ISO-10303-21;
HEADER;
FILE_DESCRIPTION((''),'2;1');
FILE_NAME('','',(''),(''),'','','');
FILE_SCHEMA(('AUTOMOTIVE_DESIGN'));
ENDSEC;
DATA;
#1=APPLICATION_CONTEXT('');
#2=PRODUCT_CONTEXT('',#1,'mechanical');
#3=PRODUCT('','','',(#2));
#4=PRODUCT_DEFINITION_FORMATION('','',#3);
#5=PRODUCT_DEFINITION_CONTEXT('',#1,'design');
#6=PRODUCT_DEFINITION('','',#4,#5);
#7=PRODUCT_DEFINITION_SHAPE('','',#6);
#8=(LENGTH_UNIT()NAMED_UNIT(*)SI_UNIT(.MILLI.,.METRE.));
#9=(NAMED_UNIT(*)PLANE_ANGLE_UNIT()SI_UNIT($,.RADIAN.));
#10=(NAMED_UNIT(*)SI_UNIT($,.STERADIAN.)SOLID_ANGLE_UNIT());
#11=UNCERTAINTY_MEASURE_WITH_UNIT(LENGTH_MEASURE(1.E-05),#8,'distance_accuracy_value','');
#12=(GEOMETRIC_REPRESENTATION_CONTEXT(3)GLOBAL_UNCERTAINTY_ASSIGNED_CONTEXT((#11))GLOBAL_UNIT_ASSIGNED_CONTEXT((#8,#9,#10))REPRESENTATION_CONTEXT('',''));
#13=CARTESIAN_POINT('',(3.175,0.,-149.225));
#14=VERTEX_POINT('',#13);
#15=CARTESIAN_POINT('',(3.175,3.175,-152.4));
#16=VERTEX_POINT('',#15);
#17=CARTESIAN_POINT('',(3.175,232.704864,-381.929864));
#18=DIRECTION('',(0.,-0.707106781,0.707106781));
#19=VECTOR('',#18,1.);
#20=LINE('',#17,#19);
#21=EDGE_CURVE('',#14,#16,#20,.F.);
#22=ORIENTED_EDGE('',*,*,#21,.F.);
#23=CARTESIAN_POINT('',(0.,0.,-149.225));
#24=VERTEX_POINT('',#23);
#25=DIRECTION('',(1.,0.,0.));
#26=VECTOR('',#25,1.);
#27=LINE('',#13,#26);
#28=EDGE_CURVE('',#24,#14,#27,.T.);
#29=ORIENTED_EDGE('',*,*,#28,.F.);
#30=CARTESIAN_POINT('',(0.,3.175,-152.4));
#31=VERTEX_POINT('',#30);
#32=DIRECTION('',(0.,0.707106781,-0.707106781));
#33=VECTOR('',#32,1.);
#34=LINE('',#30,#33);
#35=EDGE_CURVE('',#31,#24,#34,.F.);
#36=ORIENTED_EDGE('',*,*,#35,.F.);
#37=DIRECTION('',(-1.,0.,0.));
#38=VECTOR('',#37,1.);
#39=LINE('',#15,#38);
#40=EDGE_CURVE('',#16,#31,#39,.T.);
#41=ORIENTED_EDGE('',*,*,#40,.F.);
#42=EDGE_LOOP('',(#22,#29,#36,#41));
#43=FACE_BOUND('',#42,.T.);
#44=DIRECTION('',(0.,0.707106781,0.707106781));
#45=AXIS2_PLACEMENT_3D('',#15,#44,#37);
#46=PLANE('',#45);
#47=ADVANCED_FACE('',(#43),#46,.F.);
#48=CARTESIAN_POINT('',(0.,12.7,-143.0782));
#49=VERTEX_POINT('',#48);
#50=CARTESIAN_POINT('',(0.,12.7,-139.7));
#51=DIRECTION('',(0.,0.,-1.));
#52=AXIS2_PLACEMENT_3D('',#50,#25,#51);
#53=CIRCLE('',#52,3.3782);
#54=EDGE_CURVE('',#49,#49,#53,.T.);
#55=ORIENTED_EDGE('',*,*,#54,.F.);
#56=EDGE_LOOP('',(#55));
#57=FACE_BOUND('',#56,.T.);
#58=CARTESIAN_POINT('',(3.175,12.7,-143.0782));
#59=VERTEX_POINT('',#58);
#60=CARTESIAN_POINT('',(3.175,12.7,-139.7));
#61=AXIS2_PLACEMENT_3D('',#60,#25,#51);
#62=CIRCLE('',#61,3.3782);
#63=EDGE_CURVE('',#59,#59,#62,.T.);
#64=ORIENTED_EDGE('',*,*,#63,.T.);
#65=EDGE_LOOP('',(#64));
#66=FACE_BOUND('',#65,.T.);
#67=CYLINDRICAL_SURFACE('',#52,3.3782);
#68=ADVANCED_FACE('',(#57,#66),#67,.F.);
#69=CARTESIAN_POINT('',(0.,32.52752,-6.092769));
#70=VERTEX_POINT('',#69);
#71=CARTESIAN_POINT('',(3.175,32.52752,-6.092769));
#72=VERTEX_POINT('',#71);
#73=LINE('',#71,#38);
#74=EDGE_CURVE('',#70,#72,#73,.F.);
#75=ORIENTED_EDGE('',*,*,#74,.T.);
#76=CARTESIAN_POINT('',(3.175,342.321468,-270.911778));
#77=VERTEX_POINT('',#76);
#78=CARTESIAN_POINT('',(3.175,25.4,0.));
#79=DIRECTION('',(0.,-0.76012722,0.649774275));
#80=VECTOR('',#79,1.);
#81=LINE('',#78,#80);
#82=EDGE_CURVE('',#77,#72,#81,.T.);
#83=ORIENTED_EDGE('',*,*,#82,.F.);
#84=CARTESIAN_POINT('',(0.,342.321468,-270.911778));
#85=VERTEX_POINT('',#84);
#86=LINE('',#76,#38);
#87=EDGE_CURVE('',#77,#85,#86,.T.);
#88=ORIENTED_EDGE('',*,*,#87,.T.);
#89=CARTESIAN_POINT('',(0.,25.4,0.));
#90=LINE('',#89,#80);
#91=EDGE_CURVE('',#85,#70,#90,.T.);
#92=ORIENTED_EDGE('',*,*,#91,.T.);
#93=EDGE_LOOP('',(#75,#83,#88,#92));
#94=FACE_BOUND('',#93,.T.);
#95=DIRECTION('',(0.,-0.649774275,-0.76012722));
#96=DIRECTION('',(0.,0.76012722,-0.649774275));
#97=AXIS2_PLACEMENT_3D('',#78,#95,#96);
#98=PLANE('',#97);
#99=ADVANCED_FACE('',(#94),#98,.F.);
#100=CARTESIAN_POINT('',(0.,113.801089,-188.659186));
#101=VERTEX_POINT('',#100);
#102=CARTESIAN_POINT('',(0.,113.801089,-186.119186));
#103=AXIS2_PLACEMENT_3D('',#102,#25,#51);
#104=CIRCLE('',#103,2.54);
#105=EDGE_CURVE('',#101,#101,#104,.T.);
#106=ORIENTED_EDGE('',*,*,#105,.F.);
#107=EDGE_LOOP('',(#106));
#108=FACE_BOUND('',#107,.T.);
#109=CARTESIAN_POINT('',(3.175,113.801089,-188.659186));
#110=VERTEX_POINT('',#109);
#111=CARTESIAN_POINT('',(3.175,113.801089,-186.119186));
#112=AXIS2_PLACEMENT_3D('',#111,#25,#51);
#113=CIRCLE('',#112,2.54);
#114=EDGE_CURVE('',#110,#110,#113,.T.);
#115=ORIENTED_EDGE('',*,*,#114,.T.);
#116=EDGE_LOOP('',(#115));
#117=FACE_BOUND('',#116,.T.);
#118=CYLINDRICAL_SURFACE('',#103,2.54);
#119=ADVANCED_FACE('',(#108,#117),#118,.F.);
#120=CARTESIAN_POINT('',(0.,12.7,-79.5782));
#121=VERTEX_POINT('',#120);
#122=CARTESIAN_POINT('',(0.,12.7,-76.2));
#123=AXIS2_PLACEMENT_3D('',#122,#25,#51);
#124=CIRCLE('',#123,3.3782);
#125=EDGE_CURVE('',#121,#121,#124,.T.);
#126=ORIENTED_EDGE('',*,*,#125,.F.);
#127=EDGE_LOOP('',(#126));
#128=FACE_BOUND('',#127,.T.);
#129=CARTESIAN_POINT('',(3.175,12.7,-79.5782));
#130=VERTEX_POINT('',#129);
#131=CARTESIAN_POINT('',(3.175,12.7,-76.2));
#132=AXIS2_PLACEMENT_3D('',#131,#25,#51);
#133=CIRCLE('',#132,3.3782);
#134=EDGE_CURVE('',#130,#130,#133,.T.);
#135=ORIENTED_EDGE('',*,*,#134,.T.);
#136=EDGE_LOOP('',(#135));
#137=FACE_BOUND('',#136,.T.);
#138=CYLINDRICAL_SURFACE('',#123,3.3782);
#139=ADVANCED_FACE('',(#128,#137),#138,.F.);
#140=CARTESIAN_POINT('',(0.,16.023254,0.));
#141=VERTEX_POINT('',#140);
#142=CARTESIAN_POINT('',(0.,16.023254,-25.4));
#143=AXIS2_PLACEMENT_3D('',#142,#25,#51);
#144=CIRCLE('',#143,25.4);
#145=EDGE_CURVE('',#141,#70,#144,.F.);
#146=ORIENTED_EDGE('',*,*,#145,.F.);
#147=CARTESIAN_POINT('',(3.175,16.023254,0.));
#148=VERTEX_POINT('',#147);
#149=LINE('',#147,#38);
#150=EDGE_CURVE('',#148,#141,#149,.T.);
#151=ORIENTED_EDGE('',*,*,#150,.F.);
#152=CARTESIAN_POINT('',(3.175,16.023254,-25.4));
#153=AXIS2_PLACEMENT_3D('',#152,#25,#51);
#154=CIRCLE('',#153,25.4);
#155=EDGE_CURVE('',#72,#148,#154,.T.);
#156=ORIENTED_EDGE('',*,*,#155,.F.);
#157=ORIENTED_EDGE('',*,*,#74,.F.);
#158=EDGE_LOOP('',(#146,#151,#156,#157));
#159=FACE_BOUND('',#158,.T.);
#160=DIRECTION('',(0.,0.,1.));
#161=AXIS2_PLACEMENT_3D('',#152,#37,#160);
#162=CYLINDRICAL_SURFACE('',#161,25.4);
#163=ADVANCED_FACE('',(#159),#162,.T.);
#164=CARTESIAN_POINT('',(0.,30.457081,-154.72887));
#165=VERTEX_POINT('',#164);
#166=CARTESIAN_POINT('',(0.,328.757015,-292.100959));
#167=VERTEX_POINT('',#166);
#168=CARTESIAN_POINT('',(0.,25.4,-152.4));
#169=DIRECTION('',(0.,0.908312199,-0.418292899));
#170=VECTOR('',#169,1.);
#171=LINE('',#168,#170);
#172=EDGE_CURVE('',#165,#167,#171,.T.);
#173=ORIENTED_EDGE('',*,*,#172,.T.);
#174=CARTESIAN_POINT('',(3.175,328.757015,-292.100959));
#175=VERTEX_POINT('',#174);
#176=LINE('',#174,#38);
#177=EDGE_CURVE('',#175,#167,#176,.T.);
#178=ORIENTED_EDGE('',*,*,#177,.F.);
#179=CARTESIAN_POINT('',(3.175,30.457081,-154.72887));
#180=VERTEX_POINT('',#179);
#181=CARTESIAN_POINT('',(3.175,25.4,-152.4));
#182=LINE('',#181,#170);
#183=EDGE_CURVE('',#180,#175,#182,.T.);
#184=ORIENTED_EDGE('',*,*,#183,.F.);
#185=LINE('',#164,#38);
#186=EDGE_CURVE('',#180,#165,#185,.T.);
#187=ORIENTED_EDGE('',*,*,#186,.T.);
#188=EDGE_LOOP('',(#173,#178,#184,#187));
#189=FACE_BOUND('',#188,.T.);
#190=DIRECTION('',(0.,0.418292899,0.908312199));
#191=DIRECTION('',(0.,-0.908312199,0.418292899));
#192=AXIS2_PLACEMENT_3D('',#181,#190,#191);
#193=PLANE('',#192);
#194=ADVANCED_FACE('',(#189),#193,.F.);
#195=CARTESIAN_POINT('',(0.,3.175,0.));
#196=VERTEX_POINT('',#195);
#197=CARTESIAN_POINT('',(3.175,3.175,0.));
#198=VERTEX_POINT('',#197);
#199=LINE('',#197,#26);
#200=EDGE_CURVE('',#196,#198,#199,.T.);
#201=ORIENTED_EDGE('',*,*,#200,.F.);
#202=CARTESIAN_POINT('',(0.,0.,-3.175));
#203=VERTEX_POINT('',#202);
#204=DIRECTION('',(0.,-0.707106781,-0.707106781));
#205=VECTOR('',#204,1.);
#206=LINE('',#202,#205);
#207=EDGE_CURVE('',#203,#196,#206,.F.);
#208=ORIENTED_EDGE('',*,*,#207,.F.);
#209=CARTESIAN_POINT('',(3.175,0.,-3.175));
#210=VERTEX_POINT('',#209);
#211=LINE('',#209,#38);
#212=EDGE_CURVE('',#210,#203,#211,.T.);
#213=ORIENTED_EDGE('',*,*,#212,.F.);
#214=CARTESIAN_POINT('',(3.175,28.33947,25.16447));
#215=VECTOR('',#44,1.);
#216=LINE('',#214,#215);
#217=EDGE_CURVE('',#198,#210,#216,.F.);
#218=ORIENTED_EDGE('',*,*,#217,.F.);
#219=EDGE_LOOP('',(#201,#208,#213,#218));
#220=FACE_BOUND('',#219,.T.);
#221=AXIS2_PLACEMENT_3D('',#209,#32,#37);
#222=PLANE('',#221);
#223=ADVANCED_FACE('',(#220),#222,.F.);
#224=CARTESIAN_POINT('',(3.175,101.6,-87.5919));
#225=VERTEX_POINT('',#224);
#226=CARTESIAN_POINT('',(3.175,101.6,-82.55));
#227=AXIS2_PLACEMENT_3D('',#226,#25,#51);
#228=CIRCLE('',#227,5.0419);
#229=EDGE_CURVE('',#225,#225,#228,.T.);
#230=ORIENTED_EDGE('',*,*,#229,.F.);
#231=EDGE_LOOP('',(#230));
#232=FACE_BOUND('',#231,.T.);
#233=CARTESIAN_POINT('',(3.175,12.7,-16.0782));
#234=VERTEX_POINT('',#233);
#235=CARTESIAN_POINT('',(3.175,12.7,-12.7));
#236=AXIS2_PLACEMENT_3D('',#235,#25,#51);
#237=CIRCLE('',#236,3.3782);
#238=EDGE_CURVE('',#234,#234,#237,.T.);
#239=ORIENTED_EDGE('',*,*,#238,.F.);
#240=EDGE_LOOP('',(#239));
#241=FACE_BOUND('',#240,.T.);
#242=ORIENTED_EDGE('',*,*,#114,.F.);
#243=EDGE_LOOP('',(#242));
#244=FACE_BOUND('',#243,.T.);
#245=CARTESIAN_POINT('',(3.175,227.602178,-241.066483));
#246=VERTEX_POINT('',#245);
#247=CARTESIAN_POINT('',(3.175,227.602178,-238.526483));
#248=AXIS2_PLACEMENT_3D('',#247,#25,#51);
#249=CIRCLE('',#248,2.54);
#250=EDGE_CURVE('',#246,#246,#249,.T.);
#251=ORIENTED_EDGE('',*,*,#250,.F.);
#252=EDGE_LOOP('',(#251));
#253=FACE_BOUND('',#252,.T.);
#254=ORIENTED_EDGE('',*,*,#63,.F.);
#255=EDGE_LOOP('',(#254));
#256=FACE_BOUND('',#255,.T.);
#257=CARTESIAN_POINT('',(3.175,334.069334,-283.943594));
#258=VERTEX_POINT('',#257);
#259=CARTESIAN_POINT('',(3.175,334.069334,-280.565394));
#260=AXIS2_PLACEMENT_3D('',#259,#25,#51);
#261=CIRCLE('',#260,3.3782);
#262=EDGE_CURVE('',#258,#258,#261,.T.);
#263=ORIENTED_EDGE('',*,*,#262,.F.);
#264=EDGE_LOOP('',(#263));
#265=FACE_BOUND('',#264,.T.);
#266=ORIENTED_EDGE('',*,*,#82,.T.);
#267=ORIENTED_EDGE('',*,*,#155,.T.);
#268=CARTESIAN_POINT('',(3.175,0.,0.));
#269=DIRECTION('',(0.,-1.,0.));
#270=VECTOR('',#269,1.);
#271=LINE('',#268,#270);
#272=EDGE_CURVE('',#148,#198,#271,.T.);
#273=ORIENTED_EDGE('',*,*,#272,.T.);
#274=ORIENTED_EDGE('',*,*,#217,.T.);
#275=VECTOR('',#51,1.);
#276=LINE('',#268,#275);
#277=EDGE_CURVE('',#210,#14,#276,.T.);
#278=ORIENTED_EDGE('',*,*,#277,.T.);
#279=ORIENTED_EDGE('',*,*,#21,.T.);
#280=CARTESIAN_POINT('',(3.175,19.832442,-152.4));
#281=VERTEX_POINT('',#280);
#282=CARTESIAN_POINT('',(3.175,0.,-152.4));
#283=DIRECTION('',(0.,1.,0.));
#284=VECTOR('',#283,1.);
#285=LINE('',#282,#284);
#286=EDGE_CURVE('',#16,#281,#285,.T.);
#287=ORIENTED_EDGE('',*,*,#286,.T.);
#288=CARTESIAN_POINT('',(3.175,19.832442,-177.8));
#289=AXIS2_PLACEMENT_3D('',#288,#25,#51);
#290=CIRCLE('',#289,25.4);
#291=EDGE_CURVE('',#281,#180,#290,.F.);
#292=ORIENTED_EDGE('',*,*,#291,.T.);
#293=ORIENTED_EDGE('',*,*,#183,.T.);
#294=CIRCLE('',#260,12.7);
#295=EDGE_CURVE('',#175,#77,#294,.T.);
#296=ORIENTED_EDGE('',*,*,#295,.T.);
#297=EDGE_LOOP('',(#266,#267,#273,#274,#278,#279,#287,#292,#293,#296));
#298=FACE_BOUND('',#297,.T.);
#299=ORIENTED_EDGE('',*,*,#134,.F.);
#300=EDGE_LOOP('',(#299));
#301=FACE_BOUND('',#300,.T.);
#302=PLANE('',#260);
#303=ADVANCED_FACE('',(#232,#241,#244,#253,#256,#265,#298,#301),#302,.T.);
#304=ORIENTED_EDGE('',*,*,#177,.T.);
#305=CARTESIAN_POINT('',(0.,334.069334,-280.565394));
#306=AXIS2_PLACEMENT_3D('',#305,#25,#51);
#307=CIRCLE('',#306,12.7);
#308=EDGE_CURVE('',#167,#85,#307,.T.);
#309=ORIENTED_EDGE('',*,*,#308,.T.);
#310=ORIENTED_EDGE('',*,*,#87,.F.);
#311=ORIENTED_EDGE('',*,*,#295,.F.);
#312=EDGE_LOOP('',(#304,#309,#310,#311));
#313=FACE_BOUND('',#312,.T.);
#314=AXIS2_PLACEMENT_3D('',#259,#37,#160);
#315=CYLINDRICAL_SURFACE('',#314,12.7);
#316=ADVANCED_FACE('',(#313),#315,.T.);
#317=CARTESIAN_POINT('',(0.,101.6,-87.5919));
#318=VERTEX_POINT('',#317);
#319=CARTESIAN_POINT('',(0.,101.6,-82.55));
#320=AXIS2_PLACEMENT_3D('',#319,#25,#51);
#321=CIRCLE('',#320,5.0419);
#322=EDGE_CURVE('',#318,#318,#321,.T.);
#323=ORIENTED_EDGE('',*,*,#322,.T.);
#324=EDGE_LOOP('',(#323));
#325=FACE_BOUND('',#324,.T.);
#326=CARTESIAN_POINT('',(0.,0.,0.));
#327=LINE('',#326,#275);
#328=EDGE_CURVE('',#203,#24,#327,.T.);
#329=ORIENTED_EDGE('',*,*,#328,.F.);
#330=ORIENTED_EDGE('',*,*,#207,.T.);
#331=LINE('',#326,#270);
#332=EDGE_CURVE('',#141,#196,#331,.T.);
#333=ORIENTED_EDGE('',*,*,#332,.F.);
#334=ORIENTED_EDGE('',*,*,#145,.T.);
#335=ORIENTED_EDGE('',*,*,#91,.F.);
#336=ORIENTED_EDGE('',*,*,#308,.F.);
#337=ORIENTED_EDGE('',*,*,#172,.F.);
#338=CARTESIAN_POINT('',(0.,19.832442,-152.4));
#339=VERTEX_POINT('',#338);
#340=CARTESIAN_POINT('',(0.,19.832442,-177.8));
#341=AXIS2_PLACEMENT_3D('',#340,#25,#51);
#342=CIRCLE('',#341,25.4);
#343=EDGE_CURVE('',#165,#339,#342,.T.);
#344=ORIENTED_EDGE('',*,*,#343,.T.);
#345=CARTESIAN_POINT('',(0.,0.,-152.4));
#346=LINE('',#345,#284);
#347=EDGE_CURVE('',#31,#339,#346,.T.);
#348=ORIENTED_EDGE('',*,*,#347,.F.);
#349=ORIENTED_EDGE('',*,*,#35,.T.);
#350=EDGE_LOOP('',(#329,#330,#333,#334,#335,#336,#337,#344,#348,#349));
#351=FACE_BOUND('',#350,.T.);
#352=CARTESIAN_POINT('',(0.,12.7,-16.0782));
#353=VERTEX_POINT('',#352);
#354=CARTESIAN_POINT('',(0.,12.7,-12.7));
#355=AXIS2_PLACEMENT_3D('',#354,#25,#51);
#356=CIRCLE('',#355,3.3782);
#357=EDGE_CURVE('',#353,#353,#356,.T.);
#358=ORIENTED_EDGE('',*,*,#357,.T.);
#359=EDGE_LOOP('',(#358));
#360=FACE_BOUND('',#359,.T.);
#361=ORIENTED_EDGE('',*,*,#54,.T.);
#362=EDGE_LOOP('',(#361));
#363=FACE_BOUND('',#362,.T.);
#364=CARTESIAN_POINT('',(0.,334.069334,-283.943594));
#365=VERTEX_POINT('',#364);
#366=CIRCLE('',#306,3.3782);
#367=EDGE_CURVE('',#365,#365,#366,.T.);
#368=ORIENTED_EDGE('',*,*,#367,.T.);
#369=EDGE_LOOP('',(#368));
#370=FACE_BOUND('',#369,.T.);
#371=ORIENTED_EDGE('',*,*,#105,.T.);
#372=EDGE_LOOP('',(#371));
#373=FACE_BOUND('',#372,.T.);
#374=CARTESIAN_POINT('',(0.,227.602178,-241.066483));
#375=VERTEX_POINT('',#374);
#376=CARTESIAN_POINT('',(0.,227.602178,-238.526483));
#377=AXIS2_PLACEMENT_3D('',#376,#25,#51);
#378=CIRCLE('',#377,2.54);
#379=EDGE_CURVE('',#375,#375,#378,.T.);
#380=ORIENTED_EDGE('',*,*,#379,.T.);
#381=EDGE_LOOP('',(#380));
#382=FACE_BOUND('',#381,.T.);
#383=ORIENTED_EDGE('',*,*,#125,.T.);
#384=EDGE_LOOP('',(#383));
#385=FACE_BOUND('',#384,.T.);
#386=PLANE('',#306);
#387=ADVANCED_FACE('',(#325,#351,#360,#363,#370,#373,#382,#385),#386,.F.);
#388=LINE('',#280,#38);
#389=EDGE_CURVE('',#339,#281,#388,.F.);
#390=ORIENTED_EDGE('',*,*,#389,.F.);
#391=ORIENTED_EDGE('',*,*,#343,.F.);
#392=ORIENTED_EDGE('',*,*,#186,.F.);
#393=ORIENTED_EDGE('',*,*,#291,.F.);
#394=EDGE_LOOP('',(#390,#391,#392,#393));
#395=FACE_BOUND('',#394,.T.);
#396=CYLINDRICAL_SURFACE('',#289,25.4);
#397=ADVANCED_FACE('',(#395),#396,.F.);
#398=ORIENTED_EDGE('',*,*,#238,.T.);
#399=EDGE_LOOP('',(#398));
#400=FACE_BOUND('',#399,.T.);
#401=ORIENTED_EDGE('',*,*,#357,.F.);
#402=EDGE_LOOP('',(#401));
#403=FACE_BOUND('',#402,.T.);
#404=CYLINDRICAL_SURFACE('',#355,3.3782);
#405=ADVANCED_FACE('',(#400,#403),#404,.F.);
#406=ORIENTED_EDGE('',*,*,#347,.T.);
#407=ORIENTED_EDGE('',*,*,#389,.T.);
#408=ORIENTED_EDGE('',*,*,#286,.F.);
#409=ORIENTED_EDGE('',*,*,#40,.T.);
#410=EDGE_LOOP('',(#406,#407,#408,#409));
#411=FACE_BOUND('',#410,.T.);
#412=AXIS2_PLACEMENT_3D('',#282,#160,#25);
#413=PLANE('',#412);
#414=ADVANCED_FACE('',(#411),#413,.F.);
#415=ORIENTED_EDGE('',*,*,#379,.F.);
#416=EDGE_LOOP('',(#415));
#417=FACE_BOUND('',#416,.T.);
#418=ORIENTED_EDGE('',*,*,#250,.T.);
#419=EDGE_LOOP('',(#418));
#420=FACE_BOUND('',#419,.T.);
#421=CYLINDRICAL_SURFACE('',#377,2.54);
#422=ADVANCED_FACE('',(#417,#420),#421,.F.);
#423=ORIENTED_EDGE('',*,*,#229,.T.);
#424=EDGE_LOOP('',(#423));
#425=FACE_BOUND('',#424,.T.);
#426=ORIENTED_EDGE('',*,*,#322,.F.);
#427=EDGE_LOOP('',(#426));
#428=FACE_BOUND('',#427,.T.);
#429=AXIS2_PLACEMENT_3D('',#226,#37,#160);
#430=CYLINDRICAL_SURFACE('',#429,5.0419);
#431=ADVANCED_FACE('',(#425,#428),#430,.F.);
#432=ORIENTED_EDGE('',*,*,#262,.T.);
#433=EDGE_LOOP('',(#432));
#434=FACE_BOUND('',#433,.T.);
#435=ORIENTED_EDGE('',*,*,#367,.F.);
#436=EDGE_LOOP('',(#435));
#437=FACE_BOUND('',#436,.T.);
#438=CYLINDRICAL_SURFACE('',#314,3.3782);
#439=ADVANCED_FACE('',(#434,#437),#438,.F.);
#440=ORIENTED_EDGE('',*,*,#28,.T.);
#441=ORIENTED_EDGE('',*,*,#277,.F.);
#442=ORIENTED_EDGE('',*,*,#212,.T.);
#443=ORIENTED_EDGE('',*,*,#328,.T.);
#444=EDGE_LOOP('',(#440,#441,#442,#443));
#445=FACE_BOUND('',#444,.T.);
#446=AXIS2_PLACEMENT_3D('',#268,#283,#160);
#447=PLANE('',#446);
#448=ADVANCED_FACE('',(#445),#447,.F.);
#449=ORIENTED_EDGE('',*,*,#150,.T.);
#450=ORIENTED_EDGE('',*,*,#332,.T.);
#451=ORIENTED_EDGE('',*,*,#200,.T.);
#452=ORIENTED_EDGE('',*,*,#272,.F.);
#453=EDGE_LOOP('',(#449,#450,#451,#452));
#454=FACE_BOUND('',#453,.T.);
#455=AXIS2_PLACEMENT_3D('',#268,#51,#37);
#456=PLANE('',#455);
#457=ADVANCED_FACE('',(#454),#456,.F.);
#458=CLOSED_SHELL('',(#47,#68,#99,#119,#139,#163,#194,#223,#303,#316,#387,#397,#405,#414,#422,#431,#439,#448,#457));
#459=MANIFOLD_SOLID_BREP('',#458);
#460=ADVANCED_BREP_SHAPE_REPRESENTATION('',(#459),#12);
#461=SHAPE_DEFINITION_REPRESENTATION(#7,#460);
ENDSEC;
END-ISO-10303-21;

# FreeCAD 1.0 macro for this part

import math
import FreeCAD as App
import Part
import Sketcher

V = App.Vector
Q = App.Units.Quantity


def edges_at(feature, points):
    """Names of the edges that pass closest to the given points."""
    edges = feature.Shape.Edges
    near = lambda p: min(range(len(edges)), key=lambda i: edges[i].distToShape(Part.Vertex(*p))[0])
    return sorted({f"Edge{near(p) + 1}" for p in points})

doc = App.newDocument("Part")
body = doc.addObject("PartDesign::Body", "Body")

# Sketch on YZ plane
sketch1 = body.newObject("Sketcher::SketchObject", "Sketch")
sketch1.AttachmentSupport = (doc.getObject("YZ_Plane"), [""])
sketch1.MapMode = "FlatFace"
sketch1.addGeometry([
    Part.LineSegment(V(25.4, 0, 0), V(0, 0, 0)),  # 0
    Part.LineSegment(V(0, 0, 0), V(0, -152.4, 0)),  # 1
    Part.LineSegment(V(0, -152.4, 0), V(25.4, -152.4, 0)),  # 2
    Part.LineSegment(V(25.4, -152.4, 0), V(328.8, -292.1, 0)),  # 3
    Part.ArcOfCircle(Part.Circle(V(334.1, -280.6, 0), V(0, 0, 1), 12.7), math.radians(-115), math.radians(49)),  # 4
    Part.LineSegment(V(342.3, -270.9, 0), V(25.4, 0, 0)),  # 5
    Part.Circle(V(101.6, -82.5, 0), V(0, 0, 1), 5),  # 6
    Part.Circle(V(334.1, -280.6, 0), V(0, 0, 1), 3.4),  # 7
], False)
sketch1.addConstraint([
    Sketcher.Constraint("Coincident", 0, 2, 1, 1),
    Sketcher.Constraint("Coincident", 1, 2, 2, 1),
    Sketcher.Constraint("Coincident", 2, 2, 3, 1),
    Sketcher.Constraint("Tangent", 3, 2, 4, 1),
    Sketcher.Constraint("Tangent", 4, 2, 5, 1),
    Sketcher.Constraint("Coincident", 5, 2, 0, 1),
    Sketcher.Constraint("Horizontal", 0),
    Sketcher.Constraint("Vertical", 1),
    Sketcher.Constraint("Horizontal", 2),
    Sketcher.Constraint("Coincident", 0, 2, -1, 1),
    Sketcher.Constraint("Coincident", 7, 3, 4, 3),
    Sketcher.Constraint("Vertical", 2, 2, 5, 2),
    Sketcher.Constraint("Radius", 4, Q("0.5 in")),
    Sketcher.Constraint("DistanceX", 0, 2, 0, 1, Q("1 in")),
    Sketcher.Constraint("DistanceY", 1, 2, 1, 1, Q("6 in")),
    Sketcher.Constraint("Diameter", 6, Q("0.397 in")),
    Sketcher.Constraint("Diameter", 7, Q("0.266 in")),
    Sketcher.Constraint("DistanceX", -1, 1, 6, 3, Q("4 in")),
    Sketcher.Constraint("DistanceY", 6, 3, -1, 1, Q("3.25 in")),
    Sketcher.Constraint("Distance", 5, Q("416.932139 mm")),
    Sketcher.Constraint("DistanceY", 3, 2, -1, 1, Q("292.100959 mm")),
])
pad1 = body.newObject("PartDesign::Pad", "Pad")
pad1.Profile = sketch1
pad1.Length = Q("0.125 in")

# Sketch on YZ plane
sketch2 = body.newObject("Sketcher::SketchObject", "Sketch001")
sketch2.AttachmentSupport = (doc.getObject("YZ_Plane"), [""])
sketch2.MapMode = "FlatFace"
sketch2.AttachmentOffset = App.Placement(V(0, 0, 0.125 * 25.4), App.Rotation())
sketch2.addGeometry([
    Part.Circle(V(12.7, -12.7, 0), V(0, 0, 1), 3.4),  # 0
    Part.Circle(V(12.7, -76.2, 0), V(0, 0, 1), 3.4),  # 1
    Part.Circle(V(12.7, -139.7, 0), V(0, 0, 1), 3.4),  # 2
    Part.Circle(V(227.6, -238.5, 0), V(0, 0, 1), 2.5),  # 3
    Part.Circle(V(113.8, -186.1, 0), V(0, 0, 1), 2.5),  # 4
], False)
sketch2.addConstraint([
    Sketcher.Constraint("Equal", 0, 1),
    Sketcher.Constraint("Equal", 1, 2),
    Sketcher.Constraint("Equal", 3, 4),
    Sketcher.Constraint("Vertical", 0, 3, 1, 3),
    Sketcher.Constraint("Vertical", 1, 3, 2, 3),
    Sketcher.Constraint("Diameter", 3, Q("0.2 in")),
    Sketcher.Constraint("Diameter", 0, Q("0.266 in")),
    Sketcher.Constraint("DistanceY", 1, 3, -1, 1, Q("3 in")),
    Sketcher.Constraint("DistanceY", 2, 3, 0, 3, Q("5 in")),
    Sketcher.Constraint("DistanceX", -1, 1, 0, 3, Q("0.5 in")),
    Sketcher.Constraint("DistanceY", 0, 3, -1, 1, Q("0.5 in")),
    Sketcher.Constraint("DistanceX", -1, 1, 4, 3, Q("113.801089 mm")),
    Sketcher.Constraint("DistanceX", 4, 3, 3, 3, Q("113.801089 mm")),
    Sketcher.Constraint("DistanceY", 3, 3, -1, 1, Q("238.526483 mm")),
    Sketcher.Constraint("DistanceY", 4, 3, -1, 1, Q("186.119186 mm")),
])
pocket1 = body.newObject("PartDesign::Pocket", "Pocket")
pocket1.Profile = sketch2
pocket1.Type = "ThroughAll"
doc.recompute()

chamfer = body.newObject("PartDesign::Chamfer", "Chamfer")
chamfer.Base = (pocket1, edges_at(pocket1, [(1.587, 0, 0), (1.587, 0, -152.4)]))
chamfer.Size = Q("0.125 in")
doc.recompute()

fillet = body.newObject("PartDesign::Fillet", "Fillet")
fillet.Base = (chamfer, edges_at(chamfer, [(1.587, 25.4, 0), (1.587, 25.4, -152.4)]))
fillet.Radius = Q("1 in")

doc.recompute()
